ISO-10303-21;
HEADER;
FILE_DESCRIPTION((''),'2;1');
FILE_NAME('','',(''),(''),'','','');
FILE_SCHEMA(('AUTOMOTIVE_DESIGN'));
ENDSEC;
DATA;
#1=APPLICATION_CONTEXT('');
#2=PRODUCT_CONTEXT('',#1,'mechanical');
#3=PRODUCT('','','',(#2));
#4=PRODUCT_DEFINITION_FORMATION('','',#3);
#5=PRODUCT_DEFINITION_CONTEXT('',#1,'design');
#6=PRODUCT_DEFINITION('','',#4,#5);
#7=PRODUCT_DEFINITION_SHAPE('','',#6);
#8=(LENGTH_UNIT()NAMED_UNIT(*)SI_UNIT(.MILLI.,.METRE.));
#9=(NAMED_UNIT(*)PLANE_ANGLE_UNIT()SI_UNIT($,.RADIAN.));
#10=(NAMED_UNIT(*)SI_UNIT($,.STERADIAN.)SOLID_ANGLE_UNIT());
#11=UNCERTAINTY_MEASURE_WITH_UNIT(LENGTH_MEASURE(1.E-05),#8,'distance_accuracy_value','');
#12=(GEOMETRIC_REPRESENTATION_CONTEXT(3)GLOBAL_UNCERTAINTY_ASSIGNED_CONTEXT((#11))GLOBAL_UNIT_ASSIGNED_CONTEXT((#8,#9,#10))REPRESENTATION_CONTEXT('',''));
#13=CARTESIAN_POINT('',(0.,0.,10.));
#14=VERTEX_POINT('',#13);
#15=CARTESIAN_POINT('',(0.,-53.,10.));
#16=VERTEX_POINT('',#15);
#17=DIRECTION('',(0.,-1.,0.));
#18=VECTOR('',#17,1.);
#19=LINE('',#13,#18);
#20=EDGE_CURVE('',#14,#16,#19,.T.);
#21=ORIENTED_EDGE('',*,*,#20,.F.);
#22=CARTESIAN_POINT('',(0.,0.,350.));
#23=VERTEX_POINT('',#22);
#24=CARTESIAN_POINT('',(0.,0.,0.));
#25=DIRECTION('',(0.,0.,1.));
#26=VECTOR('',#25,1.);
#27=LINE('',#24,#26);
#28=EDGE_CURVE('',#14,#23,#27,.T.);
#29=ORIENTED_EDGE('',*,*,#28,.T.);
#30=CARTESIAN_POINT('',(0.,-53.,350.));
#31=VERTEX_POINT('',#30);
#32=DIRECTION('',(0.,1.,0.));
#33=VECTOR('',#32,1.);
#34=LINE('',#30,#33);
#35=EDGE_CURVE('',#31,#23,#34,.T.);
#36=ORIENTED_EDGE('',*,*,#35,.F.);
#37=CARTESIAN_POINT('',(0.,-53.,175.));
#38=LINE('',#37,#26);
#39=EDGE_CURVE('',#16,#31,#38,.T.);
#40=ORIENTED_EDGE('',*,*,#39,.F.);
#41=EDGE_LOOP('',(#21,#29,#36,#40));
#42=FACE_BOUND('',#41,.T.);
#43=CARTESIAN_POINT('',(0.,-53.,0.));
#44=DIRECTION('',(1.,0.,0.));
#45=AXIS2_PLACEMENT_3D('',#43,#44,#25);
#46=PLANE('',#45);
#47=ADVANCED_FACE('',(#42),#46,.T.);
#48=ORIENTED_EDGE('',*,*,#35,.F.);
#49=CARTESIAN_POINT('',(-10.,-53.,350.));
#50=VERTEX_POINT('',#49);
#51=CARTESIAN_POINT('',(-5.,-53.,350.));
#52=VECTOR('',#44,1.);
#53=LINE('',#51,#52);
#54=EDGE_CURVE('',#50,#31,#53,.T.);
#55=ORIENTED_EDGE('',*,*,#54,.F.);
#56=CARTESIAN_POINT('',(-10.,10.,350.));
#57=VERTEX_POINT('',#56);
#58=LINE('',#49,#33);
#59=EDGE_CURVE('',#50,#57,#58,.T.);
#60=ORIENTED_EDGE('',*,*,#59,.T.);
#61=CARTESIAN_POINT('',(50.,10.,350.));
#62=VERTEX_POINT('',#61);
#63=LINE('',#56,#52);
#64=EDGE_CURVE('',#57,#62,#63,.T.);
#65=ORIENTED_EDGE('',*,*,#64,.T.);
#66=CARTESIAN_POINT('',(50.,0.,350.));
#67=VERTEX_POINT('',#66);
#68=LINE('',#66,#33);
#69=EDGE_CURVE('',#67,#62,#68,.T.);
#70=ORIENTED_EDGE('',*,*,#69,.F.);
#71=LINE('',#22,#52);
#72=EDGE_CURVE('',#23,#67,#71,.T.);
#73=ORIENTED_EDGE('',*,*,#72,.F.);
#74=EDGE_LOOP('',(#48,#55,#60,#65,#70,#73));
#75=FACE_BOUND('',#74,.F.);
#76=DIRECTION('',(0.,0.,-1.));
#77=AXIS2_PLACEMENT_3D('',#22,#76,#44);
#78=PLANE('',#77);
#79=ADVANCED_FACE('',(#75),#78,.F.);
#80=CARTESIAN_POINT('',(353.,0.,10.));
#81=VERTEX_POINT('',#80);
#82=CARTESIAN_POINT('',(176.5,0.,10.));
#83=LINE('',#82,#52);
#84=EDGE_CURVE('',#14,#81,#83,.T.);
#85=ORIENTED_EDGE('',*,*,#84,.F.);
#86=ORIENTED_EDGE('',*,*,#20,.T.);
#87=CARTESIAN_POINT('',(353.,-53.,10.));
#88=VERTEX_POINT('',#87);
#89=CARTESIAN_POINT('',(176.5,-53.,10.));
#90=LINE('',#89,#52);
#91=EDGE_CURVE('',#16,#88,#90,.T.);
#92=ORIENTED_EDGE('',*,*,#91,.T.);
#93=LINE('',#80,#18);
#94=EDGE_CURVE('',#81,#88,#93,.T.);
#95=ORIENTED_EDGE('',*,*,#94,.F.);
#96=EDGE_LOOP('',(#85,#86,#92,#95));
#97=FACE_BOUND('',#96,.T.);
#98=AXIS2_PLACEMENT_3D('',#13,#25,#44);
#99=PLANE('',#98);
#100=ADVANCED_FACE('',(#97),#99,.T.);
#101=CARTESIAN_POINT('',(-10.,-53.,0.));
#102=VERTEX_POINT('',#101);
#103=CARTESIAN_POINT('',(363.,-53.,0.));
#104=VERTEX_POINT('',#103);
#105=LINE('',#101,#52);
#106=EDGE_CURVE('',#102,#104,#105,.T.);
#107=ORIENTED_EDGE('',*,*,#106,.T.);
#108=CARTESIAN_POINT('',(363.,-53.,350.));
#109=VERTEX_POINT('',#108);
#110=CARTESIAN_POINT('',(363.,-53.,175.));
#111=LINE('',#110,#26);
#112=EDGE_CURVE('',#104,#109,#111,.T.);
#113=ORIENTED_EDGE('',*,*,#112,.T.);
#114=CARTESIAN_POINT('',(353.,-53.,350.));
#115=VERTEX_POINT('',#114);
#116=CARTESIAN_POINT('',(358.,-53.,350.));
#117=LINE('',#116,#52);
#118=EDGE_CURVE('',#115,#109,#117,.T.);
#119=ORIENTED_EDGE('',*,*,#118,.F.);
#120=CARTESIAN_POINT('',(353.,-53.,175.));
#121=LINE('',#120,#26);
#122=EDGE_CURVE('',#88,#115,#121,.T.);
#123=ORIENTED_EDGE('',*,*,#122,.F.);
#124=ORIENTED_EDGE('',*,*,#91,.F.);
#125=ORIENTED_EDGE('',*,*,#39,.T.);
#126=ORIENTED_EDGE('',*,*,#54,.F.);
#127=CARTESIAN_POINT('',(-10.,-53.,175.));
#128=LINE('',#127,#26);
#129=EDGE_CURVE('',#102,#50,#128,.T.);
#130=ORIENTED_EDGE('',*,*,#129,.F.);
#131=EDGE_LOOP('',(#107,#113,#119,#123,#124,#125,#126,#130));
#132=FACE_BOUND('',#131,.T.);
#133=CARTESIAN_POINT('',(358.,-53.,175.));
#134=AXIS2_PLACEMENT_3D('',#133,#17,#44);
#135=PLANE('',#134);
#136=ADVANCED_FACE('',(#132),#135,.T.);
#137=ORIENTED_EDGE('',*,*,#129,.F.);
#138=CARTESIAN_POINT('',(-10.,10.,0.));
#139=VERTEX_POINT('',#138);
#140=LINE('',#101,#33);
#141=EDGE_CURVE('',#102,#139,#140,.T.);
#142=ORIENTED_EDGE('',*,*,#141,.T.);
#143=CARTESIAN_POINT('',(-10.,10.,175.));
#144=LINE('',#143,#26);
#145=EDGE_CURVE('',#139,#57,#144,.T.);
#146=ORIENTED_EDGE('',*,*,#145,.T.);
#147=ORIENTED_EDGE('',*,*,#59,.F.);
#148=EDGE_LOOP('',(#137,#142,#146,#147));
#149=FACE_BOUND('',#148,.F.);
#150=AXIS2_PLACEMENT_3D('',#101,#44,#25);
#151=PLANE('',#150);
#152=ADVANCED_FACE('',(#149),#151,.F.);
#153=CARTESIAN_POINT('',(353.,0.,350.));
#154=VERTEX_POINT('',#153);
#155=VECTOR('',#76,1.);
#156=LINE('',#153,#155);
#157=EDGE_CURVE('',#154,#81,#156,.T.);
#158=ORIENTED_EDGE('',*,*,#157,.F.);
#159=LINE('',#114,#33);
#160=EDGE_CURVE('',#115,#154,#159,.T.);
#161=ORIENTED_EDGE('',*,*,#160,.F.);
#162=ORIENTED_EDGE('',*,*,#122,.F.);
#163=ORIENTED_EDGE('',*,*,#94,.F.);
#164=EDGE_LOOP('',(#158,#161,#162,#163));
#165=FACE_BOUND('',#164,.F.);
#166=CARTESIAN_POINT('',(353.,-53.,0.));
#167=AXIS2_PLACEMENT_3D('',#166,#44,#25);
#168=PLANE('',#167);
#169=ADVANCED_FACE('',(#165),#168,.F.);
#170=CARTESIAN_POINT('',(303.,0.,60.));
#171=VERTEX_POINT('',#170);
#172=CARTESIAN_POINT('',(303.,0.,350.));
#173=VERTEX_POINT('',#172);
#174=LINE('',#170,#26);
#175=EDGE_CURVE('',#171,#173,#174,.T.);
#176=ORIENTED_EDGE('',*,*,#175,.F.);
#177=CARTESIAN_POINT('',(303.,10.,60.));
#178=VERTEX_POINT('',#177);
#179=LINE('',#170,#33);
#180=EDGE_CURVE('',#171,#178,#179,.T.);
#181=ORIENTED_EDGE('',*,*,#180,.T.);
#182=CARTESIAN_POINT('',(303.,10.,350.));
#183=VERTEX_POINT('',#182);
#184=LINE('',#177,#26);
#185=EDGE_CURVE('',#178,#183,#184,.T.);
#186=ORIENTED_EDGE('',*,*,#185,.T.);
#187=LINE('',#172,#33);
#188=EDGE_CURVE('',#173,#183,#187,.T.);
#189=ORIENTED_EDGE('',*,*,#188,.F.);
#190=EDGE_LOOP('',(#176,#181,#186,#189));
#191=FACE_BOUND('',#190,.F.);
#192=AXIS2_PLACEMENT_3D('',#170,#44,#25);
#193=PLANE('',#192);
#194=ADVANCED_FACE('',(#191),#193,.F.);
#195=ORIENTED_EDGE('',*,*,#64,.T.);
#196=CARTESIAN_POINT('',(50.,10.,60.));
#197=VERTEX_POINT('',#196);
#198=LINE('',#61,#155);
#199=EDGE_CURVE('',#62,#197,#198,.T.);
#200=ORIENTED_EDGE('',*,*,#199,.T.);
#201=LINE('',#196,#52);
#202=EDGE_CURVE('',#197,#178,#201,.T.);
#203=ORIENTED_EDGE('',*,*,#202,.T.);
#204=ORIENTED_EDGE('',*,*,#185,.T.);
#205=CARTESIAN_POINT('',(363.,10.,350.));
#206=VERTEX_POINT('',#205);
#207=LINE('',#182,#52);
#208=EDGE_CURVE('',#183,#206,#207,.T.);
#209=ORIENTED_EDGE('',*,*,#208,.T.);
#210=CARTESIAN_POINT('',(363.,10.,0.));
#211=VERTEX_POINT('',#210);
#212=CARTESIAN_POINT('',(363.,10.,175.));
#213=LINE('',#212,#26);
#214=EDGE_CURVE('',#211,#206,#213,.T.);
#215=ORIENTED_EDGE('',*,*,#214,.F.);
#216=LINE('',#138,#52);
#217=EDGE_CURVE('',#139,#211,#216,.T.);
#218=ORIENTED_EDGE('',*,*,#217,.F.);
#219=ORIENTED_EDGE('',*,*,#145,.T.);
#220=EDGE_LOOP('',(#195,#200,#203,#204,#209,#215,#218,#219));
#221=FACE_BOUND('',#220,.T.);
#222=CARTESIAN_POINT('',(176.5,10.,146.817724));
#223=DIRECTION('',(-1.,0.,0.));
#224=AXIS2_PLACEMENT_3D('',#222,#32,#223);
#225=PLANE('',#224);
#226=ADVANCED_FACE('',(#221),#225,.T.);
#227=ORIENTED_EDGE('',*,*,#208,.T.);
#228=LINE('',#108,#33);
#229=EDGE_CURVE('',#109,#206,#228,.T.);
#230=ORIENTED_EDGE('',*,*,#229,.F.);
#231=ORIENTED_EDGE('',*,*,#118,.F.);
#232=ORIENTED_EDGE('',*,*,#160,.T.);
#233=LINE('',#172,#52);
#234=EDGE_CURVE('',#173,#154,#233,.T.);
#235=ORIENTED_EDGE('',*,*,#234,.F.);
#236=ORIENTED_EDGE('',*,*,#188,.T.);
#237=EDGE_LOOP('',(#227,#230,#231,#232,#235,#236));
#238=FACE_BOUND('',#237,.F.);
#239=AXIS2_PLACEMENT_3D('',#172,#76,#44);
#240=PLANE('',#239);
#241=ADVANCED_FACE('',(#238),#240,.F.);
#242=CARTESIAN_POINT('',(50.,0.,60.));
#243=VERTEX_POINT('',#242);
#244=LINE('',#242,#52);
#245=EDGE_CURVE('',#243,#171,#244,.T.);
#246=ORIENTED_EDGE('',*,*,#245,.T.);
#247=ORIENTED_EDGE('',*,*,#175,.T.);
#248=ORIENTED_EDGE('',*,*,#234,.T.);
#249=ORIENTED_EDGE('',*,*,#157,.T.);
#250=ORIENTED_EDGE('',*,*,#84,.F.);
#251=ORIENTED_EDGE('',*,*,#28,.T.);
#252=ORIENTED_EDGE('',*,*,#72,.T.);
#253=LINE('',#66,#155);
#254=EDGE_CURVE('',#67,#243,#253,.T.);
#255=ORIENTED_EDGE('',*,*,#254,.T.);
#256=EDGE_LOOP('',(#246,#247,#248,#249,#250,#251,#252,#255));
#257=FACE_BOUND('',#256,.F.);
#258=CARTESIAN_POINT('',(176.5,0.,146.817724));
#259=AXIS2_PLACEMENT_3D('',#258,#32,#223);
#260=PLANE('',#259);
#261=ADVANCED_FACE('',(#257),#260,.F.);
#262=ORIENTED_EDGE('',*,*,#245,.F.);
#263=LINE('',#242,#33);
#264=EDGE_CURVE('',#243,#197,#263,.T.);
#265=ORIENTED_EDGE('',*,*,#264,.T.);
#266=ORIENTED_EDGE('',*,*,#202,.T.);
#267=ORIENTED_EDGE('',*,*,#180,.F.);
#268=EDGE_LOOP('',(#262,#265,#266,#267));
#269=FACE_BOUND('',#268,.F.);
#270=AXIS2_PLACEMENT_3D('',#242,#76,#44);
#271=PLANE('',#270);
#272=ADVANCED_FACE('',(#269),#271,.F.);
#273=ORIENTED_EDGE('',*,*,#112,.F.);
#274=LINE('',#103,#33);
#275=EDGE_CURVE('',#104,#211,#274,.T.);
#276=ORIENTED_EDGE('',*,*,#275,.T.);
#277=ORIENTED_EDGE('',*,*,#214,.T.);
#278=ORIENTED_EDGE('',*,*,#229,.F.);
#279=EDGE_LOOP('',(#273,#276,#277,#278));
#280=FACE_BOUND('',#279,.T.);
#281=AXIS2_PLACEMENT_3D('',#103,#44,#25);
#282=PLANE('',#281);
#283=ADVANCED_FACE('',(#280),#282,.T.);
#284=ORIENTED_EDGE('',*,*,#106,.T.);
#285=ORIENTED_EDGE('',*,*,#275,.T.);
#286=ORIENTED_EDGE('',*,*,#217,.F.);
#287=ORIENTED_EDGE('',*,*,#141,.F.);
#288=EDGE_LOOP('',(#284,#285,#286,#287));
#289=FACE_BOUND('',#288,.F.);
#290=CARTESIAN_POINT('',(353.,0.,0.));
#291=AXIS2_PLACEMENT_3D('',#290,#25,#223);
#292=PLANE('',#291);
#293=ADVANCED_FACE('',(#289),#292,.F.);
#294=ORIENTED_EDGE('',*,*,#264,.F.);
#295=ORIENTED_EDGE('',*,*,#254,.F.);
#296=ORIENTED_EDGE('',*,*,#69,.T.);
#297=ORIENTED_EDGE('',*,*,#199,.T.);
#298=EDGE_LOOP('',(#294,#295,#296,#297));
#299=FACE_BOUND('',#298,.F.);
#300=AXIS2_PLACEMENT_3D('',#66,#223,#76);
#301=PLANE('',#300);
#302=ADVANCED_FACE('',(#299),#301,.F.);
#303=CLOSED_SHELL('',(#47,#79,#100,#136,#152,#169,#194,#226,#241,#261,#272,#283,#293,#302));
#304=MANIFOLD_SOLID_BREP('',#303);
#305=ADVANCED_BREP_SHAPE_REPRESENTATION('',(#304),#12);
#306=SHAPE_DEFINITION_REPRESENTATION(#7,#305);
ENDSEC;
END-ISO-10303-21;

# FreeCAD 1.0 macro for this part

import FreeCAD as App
import Part
import Sketcher
from FreeCAD import Vector
Q = App.Units.Quantity

doc = App.newDocument("Part")
params = doc.addObject("Spreadsheet::Sheet", "Params")
for row, (alias, value) in enumerate([
    ("sketch1_width", "353 mm"),
    ("sketch1_height", "10 mm"),
    ("pad1_length", "53 mm"),
    ("sketch2_width", "10 mm"),
    ("sketch2_height", "350 mm"),
    ("pad2_length", "63 mm"),
    ("sketch3_width", "353 mm"),
    ("sketch3_width2", "50 mm"),
    ("sketch3_height", "350 mm"),
    ("sketch3_height2", "290 mm"),
    ("pad3_length", "10 mm"),
], start=1):
    params.set(f"A{row}", alias)
    params.set(f"B{row}", "=" + value)
    params.setAlias(f"B{row}", alias)

body = doc.addObject("PartDesign::Body", "Body")

sketch1 = body.newObject("Sketcher::SketchObject", "Sketch")
sketch1.AttachmentSupport = (doc.getObject("XZ_Plane"), [""])
sketch1.MapMode = "FlatFace"
sketch1.addGeometry([
    Part.LineSegment(Vector(0, 10, 0), Vector(0, 0, 0)),
    Part.LineSegment(Vector(0, 0, 0), Vector(353, 0, 0)),
    Part.LineSegment(Vector(353, 0, 0), Vector(353, 10, 0)),
    Part.LineSegment(Vector(353, 10, 0), Vector(0, 10, 0)),
], False)
sketch1.addConstraint([
    Sketcher.Constraint("Coincident", 0, 2, 1, 1),
    Sketcher.Constraint("Coincident", 1, 2, 2, 1),
    Sketcher.Constraint("Coincident", 2, 2, 3, 1),
    Sketcher.Constraint("Coincident", 3, 2, 0, 1),
    Sketcher.Constraint("Vertical", 0),
    Sketcher.Constraint("Horizontal", 1),
    Sketcher.Constraint("Vertical", 2),
    Sketcher.Constraint("Horizontal", 3),
    Sketcher.Constraint("Coincident", 0, 2, -1, 1),
    Sketcher.Constraint("DistanceX", 1, 1, 1, 2, Q("353 mm")),
    Sketcher.Constraint("DistanceY", 0, 2, 0, 1, Q("10 mm")),
])
sketch1.setExpression("Constraints[9]", "Params.sketch1_width")
sketch1.setExpression("Constraints[10]", "Params.sketch1_height")
pad1 = body.newObject("PartDesign::Pad", "Pad")
pad1.Profile = sketch1
pad1.setExpression("Length", "Params.pad1_length")

sketch2 = body.newObject("Sketcher::SketchObject", "Sketch001")
sketch2.AttachmentSupport = (doc.getObject("XZ_Plane"), [""])
sketch2.MapMode = "FlatFace"
sketch2.AttachmentOffset = App.Placement(Vector(0, 0, 53), App.Rotation())
sketch2.addGeometry([
    Part.LineSegment(Vector(353, 350, 0), Vector(353, 0, 0)),
    Part.LineSegment(Vector(353, 0, 0), Vector(363, 0, 0)),
    Part.LineSegment(Vector(363, 0, 0), Vector(363, 350, 0)),
    Part.LineSegment(Vector(363, 350, 0), Vector(353, 350, 0)),
    Part.LineSegment(Vector(-10, 350, 0), Vector(-10, 0, 0)),
    Part.LineSegment(Vector(-10, 0, 0), Vector(0, 0, 0)),
    Part.LineSegment(Vector(0, 0, 0), Vector(0, 350, 0)),
    Part.LineSegment(Vector(0, 350, 0), Vector(-10, 350, 0)),
], False)
sketch2.addConstraint([
    Sketcher.Constraint("Coincident", 0, 2, 1, 1),
    Sketcher.Constraint("Coincident", 1, 2, 2, 1),
    Sketcher.Constraint("Coincident", 2, 2, 3, 1),
    Sketcher.Constraint("Coincident", 3, 2, 0, 1),
    Sketcher.Constraint("Coincident", 4, 2, 5, 1),
    Sketcher.Constraint("Coincident", 5, 2, 6, 1),
    Sketcher.Constraint("Coincident", 6, 2, 7, 1),
    Sketcher.Constraint("Coincident", 7, 2, 4, 1),
    Sketcher.Constraint("Vertical", 0),
    Sketcher.Constraint("Horizontal", 1),
    Sketcher.Constraint("Vertical", 2),
    Sketcher.Constraint("Horizontal", 3),
    Sketcher.Constraint("Vertical", 4),
    Sketcher.Constraint("Horizontal", 5),
    Sketcher.Constraint("Vertical", 6),
    Sketcher.Constraint("Horizontal", 7),
    Sketcher.Constraint("Coincident", 5, 2, -1, 1),
    Sketcher.Constraint("PointOnObject", 0, 2, -1),
    Sketcher.Constraint("Horizontal", 3, 2, 6, 2),
    Sketcher.Constraint("Equal", 3, 5),
    Sketcher.Constraint("DistanceX", 1, 1, 1, 2, Q("10 mm")),
    Sketcher.Constraint("DistanceY", 0, 2, 0, 1, Q("350 mm")),
    Sketcher.Constraint("DistanceX", -1, 1, 0, 2, Q("353 mm")),
])
sketch2.setExpression("Constraints[20]", "Params.sketch2_width")
sketch2.setExpression("Constraints[21]", "Params.sketch2_height")
pad2 = body.newObject("PartDesign::Pad", "Pad001")
pad2.Profile = sketch2
pad2.setExpression("Length", "Params.pad2_length")
pad2.Reversed = True

sketch3 = body.newObject("Sketcher::SketchObject", "Sketch002")
sketch3.AttachmentSupport = (doc.getObject("XZ_Plane"), [""])
sketch3.MapMode = "FlatFace"
sketch3.addGeometry([
    Part.LineSegment(Vector(353, 0, 0), Vector(0, 0, 0)),
    Part.LineSegment(Vector(0, 0, 0), Vector(0, 350, 0)),
    Part.LineSegment(Vector(0, 350, 0), Vector(50, 350, 0)),
    Part.LineSegment(Vector(50, 350, 0), Vector(50, 60, 0)),
    Part.LineSegment(Vector(50, 60, 0), Vector(303, 60, 0)),
    Part.LineSegment(Vector(303, 60, 0), Vector(303, 350, 0)),
    Part.LineSegment(Vector(303, 350, 0), Vector(353, 350, 0)),
    Part.LineSegment(Vector(353, 350, 0), Vector(353, 0, 0)),
], False)
sketch3.addConstraint([
    Sketcher.Constraint("Coincident", 0, 2, 1, 1),
    Sketcher.Constraint("Coincident", 1, 2, 2, 1),
    Sketcher.Constraint("Coincident", 2, 2, 3, 1),
    Sketcher.Constraint("Coincident", 3, 2, 4, 1),
    Sketcher.Constraint("Coincident", 4, 2, 5, 1),
    Sketcher.Constraint("Coincident", 5, 2, 6, 1),
    Sketcher.Constraint("Coincident", 6, 2, 7, 1),
    Sketcher.Constraint("Coincident", 7, 2, 0, 1),
    Sketcher.Constraint("Horizontal", 0),
    Sketcher.Constraint("Vertical", 1),
    Sketcher.Constraint("Horizontal", 2),
    Sketcher.Constraint("Vertical", 3),
    Sketcher.Constraint("Horizontal", 4),
    Sketcher.Constraint("Vertical", 5),
    Sketcher.Constraint("Horizontal", 6),
    Sketcher.Constraint("Vertical", 7),
    Sketcher.Constraint("Coincident", 0, 2, -1, 1),
    Sketcher.Constraint("Horizontal", 2, 2, 5, 2),
    Sketcher.Constraint("Equal", 2, 6),
    Sketcher.Constraint("DistanceX", 0, 2, 0, 1, Q("353 mm")),
    Sketcher.Constraint("DistanceX", 2, 1, 2, 2, Q("50 mm")),
    Sketcher.Constraint("DistanceY", 1, 1, 1, 2, Q("350 mm")),
    Sketcher.Constraint("DistanceY", 3, 2, 3, 1, Q("290 mm")),
])
sketch3.setExpression("Constraints[19]", "Params.sketch3_width")
sketch3.setExpression("Constraints[20]", "Params.sketch3_width2")
sketch3.setExpression("Constraints[21]", "Params.sketch3_height")
sketch3.setExpression("Constraints[22]", "Params.sketch3_height2")
pad3 = body.newObject("PartDesign::Pad", "Pad002")
pad3.Profile = sketch3
pad3.setExpression("Length", "Params.pad3_length")
pad3.Reversed = True

doc.recompute()
